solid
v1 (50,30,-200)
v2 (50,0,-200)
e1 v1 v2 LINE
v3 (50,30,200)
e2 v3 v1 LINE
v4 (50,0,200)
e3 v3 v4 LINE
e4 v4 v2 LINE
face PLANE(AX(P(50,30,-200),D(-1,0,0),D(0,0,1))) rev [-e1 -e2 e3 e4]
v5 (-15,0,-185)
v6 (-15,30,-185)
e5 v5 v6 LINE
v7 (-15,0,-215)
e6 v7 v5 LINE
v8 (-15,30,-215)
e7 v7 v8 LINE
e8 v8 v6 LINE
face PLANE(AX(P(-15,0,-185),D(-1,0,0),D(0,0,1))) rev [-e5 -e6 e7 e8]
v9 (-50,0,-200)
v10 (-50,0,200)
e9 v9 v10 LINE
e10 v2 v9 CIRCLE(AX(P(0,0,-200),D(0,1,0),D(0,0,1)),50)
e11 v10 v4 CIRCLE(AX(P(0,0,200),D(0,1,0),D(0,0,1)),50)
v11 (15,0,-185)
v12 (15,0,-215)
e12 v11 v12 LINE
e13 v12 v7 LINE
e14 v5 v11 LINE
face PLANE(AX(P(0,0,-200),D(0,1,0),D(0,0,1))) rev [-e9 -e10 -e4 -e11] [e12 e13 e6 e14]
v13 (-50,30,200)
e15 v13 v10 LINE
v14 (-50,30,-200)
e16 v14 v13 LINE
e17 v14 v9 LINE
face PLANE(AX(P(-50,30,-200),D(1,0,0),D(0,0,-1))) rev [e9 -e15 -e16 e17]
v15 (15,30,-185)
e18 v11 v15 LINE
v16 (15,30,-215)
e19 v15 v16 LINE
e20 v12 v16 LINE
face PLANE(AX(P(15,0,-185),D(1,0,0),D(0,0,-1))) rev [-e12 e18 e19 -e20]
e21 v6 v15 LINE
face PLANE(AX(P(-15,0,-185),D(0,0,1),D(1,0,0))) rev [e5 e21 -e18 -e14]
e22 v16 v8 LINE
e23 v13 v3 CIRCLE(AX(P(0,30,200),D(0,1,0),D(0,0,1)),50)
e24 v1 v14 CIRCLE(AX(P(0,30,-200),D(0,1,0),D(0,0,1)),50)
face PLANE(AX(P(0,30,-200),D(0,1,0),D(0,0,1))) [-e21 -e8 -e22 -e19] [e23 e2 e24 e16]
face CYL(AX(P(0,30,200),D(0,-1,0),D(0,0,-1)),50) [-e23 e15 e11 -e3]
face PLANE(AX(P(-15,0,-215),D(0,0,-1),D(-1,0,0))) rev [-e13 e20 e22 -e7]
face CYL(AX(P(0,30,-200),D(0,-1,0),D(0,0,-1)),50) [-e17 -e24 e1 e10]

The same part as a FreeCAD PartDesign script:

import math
import FreeCAD as App
import Part
import Sketcher

V = App.Vector
Q = App.Units.Quantity

doc = App.newDocument("Part")
body = doc.addObject("PartDesign::Body", "Body")

# Sketch on XZ plane
sketch1 = body.newObject("Sketcher::SketchObject", "Sketch")
sketch1.AttachmentSupport = (doc.getObject("XZ_Plane"), [""])
sketch1.MapMode = "FlatFace"
sketch1.addGeometry(Part.LineSegment(V(50, 200, 0), V(50, -200, 0)), False)
sketch1.addGeometry(Part.ArcOfCircle(Part.Circle(V(0, -200, 0), V(0, 0, 1), 50), math.radians(180), math.radians(360)), False)
sketch1.addGeometry(Part.LineSegment(V(-50, -200, 0), V(-50, 200, 0)), False)
sketch1.addGeometry(Part.ArcOfCircle(Part.Circle(V(0, 200, 0), V(0, 0, 1), 50), math.radians(0), math.radians(180)), False)
sketch1.addConstraint(Sketcher.Constraint("Tangent", 0, 2, 1, 2))
sketch1.addConstraint(Sketcher.Constraint("Tangent", 1, 1, 2, 1))
sketch1.addConstraint(Sketcher.Constraint("Tangent", 2, 2, 3, 2))
sketch1.addConstraint(Sketcher.Constraint("Tangent", 3, 1, 0, 1))
sketch1.addConstraint(Sketcher.Constraint("Vertical", 0))
sketch1.addConstraint(Sketcher.Constraint("Vertical", 2))
sketch1.addConstraint(Sketcher.Constraint("Symmetric", 1, 3, 3, 3, -1, 1))
sketch1.addConstraint(Sketcher.Constraint("Radius", 1, Q("50 mm")))
sketch1.addConstraint(Sketcher.Constraint("DistanceY", 0, 2, 0, 1, Q("400 mm")))
pad1 = body.newObject("PartDesign::Pad", "Pad")
pad1.Profile = sketch1
pad1.Length = 30
pad1.Reversed = True

# Sketch on XZ plane
sketch2 = body.newObject("Sketcher::SketchObject", "Sketch001")
sketch2.AttachmentSupport = (doc.getObject("XZ_Plane"), [""])
sketch2.MapMode = "FlatFace"
sketch2.AttachmentOffset = App.Placement(V(0, 0, -30), App.Rotation())
sketch2.addGeometry(Part.LineSegment(V(-15, -215, 0), V(-15, -185, 0)), False)
sketch2.addGeometry(Part.LineSegment(V(-15, -185, 0), V(15, -185, 0)), False)
sketch2.addGeometry(Part.LineSegment(V(15, -185, 0), V(15, -215, 0)), False)
sketch2.addGeometry(Part.LineSegment(V(15, -215, 0), V(-15, -215, 0)), False)
sketch2.addConstraint(Sketcher.Constraint("Coincident", 0, 2, 1, 1))
sketch2.addConstraint(Sketcher.Constraint("Coincident", 1, 2, 2, 1))
sketch2.addConstraint(Sketcher.Constraint("Coincident", 2, 2, 3, 1))
sketch2.addConstraint(Sketcher.Constraint("Coincident", 3, 2, 0, 1))
sketch2.addConstraint(Sketcher.Constraint("Vertical", 0))
sketch2.addConstraint(Sketcher.Constraint("Horizontal", 1))
sketch2.addConstraint(Sketcher.Constraint("Vertical", 2))
sketch2.addConstraint(Sketcher.Constraint("Horizontal", 3))
sketch2.addConstraint(Sketcher.Constraint("Equal", 3, 0))
sketch2.addConstraint(Sketcher.Constraint("DistanceX", 1, 1, 1, 2, Q("30 mm")))
sketch2.addConstraint(Sketcher.Constraint("DistanceX", 0, 2, -1, 1, Q("15 mm")))
sketch2.addConstraint(Sketcher.Constraint("DistanceY", 0, 2, -1, 1, Q("185 mm")))
pocket1 = body.newObject("PartDesign::Pocket", "Pocket")
pocket1.Profile = sketch2
pocket1.Type = "ThroughAll"
pocket1.Reversed = True

doc.recompute()
